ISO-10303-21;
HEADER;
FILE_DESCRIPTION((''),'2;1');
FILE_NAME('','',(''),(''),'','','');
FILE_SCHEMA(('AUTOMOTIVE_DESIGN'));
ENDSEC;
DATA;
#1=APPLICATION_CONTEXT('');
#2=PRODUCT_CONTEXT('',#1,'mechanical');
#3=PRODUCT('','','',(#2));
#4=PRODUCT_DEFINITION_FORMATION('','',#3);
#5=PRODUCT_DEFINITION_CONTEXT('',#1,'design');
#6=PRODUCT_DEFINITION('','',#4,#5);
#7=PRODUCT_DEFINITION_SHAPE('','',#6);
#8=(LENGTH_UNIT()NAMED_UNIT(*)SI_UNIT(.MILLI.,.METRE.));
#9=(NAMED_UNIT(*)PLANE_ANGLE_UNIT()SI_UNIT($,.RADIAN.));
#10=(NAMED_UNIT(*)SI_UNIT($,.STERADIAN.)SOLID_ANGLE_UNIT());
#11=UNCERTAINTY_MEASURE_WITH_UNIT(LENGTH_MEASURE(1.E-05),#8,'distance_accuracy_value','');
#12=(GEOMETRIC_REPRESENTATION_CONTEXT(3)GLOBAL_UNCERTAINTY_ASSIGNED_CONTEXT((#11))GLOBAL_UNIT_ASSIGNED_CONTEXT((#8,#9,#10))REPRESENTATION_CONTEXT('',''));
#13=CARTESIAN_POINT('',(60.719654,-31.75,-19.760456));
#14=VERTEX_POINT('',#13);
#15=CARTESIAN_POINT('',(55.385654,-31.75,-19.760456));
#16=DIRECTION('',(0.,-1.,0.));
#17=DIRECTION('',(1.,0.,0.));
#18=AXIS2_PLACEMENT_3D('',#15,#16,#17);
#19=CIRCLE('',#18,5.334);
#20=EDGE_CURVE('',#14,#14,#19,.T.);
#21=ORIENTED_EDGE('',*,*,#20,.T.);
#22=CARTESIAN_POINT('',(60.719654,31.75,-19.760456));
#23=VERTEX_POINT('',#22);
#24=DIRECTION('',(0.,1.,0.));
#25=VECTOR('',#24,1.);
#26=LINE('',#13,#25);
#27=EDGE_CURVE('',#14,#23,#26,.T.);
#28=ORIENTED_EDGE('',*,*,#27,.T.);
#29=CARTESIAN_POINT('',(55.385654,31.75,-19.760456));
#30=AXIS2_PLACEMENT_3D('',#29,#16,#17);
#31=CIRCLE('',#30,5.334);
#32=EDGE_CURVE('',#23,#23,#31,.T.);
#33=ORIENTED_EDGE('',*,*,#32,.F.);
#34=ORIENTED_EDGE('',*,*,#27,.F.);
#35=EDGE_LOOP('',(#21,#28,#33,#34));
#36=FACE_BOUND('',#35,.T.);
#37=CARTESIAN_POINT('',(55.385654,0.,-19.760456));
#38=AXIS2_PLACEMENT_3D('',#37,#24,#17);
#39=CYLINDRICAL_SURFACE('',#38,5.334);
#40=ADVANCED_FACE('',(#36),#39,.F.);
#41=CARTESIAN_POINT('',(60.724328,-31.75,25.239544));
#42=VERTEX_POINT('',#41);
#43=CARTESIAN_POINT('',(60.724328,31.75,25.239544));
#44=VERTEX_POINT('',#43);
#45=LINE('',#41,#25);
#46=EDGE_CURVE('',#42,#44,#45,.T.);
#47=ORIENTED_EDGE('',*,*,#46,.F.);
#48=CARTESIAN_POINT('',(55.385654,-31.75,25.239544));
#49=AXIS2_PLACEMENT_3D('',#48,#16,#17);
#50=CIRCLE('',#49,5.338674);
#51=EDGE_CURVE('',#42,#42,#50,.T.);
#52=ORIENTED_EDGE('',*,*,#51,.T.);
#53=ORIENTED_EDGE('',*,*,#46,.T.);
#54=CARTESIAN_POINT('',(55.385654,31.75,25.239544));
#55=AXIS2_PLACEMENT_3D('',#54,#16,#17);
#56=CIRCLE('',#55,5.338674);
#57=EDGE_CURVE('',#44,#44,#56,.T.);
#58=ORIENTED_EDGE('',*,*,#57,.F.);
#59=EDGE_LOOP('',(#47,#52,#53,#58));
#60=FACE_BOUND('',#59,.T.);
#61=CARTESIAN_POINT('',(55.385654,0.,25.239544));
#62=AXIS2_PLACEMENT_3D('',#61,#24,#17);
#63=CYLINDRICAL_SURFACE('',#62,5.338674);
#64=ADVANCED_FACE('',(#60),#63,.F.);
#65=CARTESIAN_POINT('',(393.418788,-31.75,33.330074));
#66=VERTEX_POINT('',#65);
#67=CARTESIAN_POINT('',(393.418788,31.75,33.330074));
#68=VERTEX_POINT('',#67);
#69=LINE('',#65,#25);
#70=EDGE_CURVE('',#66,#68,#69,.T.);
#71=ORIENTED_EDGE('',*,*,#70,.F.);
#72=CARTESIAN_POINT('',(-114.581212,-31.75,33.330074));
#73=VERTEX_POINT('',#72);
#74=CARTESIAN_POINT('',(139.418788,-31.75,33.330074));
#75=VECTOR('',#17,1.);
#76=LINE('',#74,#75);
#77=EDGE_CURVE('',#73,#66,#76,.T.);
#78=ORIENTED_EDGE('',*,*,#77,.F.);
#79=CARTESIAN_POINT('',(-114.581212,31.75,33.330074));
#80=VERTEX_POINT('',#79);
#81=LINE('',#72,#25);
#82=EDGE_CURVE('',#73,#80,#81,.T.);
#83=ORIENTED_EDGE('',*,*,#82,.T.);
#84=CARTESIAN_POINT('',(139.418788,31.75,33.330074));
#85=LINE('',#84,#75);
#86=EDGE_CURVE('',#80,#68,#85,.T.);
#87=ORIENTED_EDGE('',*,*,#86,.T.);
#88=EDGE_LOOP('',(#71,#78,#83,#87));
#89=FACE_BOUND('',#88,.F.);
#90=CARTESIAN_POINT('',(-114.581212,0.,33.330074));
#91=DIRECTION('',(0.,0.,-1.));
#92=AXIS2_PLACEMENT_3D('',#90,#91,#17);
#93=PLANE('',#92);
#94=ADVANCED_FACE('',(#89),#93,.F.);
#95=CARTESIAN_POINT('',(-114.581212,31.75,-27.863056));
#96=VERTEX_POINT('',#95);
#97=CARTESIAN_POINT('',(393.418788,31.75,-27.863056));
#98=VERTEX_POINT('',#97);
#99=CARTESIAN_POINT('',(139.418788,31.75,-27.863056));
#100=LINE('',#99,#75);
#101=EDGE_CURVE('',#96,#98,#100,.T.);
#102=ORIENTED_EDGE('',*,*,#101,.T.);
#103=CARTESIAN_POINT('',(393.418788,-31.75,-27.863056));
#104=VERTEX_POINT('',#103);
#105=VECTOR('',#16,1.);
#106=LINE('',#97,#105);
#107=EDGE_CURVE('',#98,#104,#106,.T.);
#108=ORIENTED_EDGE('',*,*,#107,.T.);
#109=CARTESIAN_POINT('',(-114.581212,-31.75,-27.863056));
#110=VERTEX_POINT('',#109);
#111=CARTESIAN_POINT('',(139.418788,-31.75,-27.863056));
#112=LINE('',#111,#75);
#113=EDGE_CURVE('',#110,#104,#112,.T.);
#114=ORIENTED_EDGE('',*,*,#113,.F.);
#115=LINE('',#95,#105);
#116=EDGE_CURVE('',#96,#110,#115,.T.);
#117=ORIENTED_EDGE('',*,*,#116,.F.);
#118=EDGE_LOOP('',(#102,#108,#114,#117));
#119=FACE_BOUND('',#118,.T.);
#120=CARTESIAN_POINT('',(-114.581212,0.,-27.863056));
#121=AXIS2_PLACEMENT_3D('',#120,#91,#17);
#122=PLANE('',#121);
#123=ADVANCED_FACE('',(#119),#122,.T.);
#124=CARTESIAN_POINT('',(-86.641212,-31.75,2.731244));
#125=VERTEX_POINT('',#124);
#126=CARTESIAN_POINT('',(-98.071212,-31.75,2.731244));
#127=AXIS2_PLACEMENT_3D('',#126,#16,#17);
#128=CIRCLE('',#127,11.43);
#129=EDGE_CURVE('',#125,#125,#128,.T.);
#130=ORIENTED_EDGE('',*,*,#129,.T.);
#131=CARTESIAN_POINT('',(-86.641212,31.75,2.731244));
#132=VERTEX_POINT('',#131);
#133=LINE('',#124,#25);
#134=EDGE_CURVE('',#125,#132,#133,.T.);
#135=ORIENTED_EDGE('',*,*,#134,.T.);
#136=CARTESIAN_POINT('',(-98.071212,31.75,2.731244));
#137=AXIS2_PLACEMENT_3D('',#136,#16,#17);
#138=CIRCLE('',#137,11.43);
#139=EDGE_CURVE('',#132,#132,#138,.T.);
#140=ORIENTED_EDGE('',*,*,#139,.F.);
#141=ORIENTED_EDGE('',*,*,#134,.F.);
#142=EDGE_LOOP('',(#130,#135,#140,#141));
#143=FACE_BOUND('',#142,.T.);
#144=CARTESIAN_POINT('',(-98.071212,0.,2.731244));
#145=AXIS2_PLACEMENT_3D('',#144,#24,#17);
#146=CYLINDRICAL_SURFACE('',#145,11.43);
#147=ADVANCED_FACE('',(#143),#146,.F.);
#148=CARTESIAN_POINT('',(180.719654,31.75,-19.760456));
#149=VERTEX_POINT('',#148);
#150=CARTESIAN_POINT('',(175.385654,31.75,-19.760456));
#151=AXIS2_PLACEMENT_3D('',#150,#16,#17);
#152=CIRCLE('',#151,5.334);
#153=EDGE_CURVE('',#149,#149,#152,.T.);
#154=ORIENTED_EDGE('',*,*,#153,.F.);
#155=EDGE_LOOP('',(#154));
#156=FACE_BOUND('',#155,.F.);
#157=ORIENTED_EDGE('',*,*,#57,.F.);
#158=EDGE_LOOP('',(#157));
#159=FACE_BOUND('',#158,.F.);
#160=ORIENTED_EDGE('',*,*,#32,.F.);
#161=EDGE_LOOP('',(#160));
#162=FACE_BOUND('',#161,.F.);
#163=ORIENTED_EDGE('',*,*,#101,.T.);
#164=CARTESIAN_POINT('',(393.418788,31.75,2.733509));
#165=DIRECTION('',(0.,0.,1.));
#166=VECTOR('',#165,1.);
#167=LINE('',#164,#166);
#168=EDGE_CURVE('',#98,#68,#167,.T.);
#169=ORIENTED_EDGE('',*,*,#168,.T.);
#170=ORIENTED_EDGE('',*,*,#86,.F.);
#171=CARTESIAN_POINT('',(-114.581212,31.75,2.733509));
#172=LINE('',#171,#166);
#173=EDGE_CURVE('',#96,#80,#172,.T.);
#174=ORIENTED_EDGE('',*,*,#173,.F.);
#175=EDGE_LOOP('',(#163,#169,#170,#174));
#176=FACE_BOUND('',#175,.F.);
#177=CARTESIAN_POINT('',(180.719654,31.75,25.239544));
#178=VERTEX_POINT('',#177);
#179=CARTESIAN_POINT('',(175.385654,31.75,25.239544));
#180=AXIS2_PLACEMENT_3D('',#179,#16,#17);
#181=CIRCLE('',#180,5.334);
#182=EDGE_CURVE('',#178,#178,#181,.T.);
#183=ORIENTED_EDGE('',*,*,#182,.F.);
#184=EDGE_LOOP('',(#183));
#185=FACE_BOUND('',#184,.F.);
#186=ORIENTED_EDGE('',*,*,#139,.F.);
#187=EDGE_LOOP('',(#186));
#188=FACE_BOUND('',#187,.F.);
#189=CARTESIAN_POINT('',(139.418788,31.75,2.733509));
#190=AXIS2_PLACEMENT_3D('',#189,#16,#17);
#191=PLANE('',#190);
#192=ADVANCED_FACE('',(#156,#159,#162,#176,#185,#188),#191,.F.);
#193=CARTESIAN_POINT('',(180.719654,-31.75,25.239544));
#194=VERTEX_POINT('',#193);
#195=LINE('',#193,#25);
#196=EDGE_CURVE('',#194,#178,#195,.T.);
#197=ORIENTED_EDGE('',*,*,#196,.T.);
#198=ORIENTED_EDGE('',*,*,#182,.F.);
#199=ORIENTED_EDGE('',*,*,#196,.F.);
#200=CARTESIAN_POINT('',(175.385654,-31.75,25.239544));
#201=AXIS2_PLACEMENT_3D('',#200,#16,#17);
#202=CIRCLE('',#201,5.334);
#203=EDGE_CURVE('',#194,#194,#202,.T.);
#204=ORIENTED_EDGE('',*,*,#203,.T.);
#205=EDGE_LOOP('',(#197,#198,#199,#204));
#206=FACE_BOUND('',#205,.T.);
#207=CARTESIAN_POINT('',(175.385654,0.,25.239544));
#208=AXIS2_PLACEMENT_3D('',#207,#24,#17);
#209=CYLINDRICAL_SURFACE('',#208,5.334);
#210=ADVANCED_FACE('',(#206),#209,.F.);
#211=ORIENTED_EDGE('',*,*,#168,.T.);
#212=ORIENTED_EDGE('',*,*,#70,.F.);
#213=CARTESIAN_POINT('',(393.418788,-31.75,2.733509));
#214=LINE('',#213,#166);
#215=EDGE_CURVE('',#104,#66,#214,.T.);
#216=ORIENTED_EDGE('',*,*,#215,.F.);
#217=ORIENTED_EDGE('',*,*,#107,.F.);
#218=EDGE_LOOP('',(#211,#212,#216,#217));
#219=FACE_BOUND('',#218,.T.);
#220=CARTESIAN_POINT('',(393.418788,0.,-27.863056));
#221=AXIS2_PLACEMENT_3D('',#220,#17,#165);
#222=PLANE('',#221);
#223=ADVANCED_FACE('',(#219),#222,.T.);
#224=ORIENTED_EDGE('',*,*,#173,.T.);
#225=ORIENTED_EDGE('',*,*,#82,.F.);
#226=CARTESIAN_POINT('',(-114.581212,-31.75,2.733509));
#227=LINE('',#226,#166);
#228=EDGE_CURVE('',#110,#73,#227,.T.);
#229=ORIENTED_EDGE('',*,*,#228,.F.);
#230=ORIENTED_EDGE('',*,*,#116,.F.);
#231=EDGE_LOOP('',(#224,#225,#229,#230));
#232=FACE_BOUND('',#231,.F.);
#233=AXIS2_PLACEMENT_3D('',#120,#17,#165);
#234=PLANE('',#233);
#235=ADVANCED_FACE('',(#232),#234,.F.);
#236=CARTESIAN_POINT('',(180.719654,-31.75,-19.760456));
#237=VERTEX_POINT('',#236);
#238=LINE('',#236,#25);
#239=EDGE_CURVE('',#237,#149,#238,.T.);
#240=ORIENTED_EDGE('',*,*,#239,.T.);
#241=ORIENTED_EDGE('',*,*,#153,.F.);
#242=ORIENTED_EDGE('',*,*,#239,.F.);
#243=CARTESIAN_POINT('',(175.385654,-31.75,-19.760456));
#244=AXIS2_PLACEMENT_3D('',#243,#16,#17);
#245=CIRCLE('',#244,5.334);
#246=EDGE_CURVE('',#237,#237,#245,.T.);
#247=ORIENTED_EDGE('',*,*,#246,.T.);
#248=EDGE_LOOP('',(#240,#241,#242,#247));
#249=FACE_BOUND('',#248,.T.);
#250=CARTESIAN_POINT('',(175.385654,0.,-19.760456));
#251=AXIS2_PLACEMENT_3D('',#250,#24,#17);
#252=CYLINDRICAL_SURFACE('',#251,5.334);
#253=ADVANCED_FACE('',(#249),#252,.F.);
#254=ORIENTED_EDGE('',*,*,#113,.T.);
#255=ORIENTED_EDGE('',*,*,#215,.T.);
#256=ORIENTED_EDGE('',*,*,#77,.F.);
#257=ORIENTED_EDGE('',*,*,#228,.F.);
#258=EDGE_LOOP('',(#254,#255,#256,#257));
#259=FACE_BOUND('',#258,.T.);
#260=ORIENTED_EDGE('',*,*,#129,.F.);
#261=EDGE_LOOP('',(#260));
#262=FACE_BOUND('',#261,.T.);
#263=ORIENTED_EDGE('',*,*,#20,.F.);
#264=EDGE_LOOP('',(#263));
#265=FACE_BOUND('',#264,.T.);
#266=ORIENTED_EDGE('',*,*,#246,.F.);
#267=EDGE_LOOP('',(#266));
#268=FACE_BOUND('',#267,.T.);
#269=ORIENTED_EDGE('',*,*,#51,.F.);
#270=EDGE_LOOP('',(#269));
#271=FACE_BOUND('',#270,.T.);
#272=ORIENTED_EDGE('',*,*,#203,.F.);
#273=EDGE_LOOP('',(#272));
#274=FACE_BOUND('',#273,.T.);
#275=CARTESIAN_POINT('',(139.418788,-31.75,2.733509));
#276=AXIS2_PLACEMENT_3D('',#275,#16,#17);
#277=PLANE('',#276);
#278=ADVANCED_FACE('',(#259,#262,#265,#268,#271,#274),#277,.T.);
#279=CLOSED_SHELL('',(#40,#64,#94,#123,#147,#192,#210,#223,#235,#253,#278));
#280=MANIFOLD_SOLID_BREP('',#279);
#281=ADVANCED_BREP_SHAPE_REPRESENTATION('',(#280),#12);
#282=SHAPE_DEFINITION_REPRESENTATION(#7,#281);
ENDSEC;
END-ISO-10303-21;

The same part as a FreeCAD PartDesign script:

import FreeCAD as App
import Part
import Sketcher
from FreeCAD import Vector
Q = App.Units.Quantity


def add_polygon(sketch, points):
    """Adds a closed chain of lines whose ends are joined by coincident constraints."""
    first, n = sketch.GeometryCount, len(points)
    for a, b in zip(points, points[1:] + points[:1]):
        sketch.addGeometry(Part.LineSegment(App.Vector(*a, 0), App.Vector(*b, 0)), False)
    for i in range(n):
        sketch.addConstraint(Sketcher.Constraint("Coincident", first + i, 2, first + (i + 1) % n, 1))

doc = App.newDocument("Part")
body = doc.addObject("PartDesign::Body", "Body")

sketch1 = body.newObject("Sketcher::SketchObject", "Sketch")
sketch1.AttachmentSupport = (doc.getObject("XZ_Plane"), [""])
sketch1.MapMode = "FlatFace"
add_polygon(sketch1, [(-115, 33), (-115, -28), (393, -28), (393, 33)])
sketch1.addGeometry(Part.Circle(Vector(-98, 3, 0), Vector(0, 0, 1), 11), False)
sketch1.addGeometry(Part.Circle(Vector(55, -20, 0), Vector(0, 0, 1), 5), False)
sketch1.addGeometry(Part.Circle(Vector(175, -20, 0), Vector(0, 0, 1), 5), False)
sketch1.addGeometry(Part.Circle(Vector(55, 25, 0), Vector(0, 0, 1), 5), False)
sketch1.addGeometry(Part.Circle(Vector(175, 25, 0), Vector(0, 0, 1), 5), False)
sketch1.addConstraint([
    Sketcher.Constraint("Vertical", 0),
    Sketcher.Constraint("Horizontal", 1),
    Sketcher.Constraint("Vertical", 2),
    Sketcher.Constraint("Horizontal", 3),
    Sketcher.Constraint("Equal", 5, 6),
    Sketcher.Constraint("Equal", 6, 8),
    Sketcher.Constraint("Horizontal", 5, 3, 6, 3),
    Sketcher.Constraint("Horizontal", 7, 3, 8, 3),
    Sketcher.Constraint("Vertical", 5, 3, 7, 3),
    Sketcher.Constraint("Vertical", 6, 3, 8, 3),
    Sketcher.Constraint("Diameter", 4, Q("0.9 in")),
    Sketcher.Constraint("Diameter", 5, Q("0.42 in")),
    Sketcher.Constraint("DistanceX", 1, 1, 1, 2, Q("20 in")),
    Sketcher.Constraint("DistanceX", 0, 2, 4, 3, Q("0.65 in")),
    Sketcher.Constraint("DistanceY", 0, 2, 5, 3, Q("0.319 in")),
    Sketcher.Constraint("Diameter", 7, 10.677348),
    Sketcher.Constraint("DistanceY", 5, 3, 4, 3, Q("0.8855 in")),
    Sketcher.Constraint("DistanceY", 0, 2, 0, 1, 61.19313),
    Sketcher.Constraint("DistanceX", 5, 3, 6, 3, 120.0),
    Sketcher.Constraint("DistanceY", 5, 3, 7, 3, 45.0),
    Sketcher.Constraint("DistanceX", 0, 2, -1, 1, 114.581212),
    Sketcher.Constraint("DistanceY", -1, 1, 4, 3, 2.731244),
    Sketcher.Constraint("DistanceX", -1, 1, 5, 3, 55.385654),
])
pad1 = body.newObject("PartDesign::Pad", "Pad")
pad1.Profile = sketch1
pad1.Length = Q("2.5 in")
pad1.Midplane = True

doc.recompute()
